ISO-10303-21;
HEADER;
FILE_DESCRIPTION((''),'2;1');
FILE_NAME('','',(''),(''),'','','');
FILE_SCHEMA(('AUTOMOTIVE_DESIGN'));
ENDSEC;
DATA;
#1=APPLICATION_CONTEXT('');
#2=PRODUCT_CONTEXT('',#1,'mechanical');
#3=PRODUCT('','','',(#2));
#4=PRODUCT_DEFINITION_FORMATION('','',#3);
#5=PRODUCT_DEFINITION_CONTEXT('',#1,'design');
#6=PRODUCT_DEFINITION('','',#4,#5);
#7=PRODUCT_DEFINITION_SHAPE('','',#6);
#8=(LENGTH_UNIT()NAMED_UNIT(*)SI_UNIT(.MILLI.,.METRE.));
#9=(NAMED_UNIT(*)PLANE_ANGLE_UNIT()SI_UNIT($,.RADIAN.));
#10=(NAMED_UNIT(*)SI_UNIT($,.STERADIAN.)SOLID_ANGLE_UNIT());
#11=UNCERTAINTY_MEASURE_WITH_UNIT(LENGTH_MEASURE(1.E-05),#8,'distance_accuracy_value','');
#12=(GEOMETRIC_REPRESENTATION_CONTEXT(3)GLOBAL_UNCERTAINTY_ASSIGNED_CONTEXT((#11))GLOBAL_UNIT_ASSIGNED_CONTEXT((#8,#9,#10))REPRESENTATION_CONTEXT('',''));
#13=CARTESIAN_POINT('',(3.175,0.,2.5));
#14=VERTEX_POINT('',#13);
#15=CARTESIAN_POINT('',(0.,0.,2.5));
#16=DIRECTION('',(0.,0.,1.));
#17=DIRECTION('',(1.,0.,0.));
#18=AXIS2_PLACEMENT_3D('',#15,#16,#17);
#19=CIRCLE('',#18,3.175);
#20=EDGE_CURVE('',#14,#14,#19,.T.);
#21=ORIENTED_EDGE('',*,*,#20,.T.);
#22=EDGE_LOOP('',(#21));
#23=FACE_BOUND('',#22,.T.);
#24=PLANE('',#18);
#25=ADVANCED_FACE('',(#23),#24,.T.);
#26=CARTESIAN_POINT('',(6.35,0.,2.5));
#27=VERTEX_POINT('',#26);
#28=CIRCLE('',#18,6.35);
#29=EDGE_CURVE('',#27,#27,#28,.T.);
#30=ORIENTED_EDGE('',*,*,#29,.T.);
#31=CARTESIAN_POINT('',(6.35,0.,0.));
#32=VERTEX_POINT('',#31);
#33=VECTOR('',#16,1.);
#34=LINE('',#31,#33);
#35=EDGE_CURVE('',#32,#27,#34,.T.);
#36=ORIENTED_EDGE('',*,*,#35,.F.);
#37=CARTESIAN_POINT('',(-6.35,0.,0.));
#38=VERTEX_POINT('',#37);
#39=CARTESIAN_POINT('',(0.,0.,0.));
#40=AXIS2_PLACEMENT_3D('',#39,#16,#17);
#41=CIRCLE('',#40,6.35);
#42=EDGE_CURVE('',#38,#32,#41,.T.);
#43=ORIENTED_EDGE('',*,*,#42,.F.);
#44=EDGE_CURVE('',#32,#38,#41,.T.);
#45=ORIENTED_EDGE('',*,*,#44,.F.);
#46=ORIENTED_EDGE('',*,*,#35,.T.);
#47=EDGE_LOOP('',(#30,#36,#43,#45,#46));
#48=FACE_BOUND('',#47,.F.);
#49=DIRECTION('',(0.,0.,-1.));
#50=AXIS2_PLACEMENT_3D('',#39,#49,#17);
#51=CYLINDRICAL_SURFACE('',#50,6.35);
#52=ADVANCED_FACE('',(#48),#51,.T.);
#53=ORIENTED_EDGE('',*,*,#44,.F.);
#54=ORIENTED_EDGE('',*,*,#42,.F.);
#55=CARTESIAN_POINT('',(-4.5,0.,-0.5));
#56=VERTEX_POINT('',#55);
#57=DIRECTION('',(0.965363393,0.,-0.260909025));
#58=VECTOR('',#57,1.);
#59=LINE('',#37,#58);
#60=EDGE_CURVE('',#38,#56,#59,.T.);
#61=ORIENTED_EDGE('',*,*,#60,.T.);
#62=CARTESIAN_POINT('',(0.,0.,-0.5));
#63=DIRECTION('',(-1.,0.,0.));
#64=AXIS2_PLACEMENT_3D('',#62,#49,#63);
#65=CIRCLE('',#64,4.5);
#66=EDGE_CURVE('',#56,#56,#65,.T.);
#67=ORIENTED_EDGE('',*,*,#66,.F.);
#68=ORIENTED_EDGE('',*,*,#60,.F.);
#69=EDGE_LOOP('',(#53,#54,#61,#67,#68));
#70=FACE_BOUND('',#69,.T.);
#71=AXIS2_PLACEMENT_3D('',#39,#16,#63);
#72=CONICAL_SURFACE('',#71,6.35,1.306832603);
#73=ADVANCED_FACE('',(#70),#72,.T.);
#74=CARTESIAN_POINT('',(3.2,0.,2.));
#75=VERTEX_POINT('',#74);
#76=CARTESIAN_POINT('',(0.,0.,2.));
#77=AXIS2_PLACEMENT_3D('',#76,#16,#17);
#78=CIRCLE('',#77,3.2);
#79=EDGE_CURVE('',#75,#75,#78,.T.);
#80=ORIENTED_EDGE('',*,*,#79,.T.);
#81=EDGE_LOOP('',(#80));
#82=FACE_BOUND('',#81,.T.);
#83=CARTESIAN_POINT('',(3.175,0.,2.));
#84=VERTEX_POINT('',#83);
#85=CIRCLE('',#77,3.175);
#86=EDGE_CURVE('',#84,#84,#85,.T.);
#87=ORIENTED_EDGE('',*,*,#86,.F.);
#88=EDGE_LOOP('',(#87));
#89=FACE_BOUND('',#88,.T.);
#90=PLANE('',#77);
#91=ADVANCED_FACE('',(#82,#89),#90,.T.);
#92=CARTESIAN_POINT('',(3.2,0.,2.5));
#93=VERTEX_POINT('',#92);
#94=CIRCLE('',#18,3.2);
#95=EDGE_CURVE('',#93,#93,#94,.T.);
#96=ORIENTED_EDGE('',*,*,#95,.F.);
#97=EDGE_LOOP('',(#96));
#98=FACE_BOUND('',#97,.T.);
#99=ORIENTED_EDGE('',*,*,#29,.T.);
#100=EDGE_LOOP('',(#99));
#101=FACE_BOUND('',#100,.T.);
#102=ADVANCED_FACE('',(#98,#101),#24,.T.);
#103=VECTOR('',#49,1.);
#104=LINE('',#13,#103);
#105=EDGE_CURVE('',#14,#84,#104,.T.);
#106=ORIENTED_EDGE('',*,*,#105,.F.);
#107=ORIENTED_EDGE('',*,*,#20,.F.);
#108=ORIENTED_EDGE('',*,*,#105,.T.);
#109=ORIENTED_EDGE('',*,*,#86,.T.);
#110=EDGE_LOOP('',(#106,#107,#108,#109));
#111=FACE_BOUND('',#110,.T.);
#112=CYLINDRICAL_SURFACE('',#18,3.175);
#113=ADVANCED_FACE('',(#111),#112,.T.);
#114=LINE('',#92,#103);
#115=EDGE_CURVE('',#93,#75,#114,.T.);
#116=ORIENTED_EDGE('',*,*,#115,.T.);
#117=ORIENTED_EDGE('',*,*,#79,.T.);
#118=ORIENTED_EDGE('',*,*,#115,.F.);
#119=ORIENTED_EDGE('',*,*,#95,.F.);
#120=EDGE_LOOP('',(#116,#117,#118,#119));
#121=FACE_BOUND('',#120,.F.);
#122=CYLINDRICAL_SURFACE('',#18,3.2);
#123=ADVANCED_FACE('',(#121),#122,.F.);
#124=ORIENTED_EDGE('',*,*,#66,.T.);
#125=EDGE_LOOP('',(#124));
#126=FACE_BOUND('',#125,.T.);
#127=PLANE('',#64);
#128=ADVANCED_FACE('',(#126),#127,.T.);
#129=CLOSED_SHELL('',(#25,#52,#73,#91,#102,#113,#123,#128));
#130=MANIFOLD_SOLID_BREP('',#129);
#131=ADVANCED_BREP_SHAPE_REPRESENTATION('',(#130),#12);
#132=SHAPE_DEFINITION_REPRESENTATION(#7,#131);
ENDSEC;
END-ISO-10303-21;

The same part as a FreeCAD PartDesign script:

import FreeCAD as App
import Part
import Sketcher

doc = App.newDocument("Part")
body = doc.addObject("PartDesign::Body", "Body")

# Sketch on XY plane
sketch1 = body.newObject("Sketcher::SketchObject", "Sketch")
sketch1.AttachmentSupport = (doc.getObject("XY_Plane"), [""])
sketch1.MapMode = "FlatFace"
sketch1.addGeometry(Part.Circle(App.Vector(0, 0, 0), App.Vector(0, 0, 1), 6), False)
sketch1.addConstraint([
    Sketcher.Constraint("Coincident", 0, 3, -1, 1),
    Sketcher.Constraint("Diameter", 0, 12.7),
])
pad1 = body.newObject("PartDesign::Pad", "Pad")
pad1.Profile = sketch1
pad1.Length = 2.5

# Sketch on XY plane
sketch2 = body.newObject("Sketcher::SketchObject", "Sketch001")
sketch2.AttachmentSupport = (doc.getObject("XY_Plane"), [""])
sketch2.MapMode = "FlatFace"
sketch2.AttachmentOffset = App.Placement(App.Vector(0, 0, 2.5), App.Rotation())
sketch2.addGeometry([
    Part.Circle(App.Vector(0, 0, 0), App.Vector(0, 0, 1), 3.2),
    Part.Circle(App.Vector(0, 0, 0), App.Vector(0, 0, 1), 3.2),
], False)
sketch2.addConstraint([
    Sketcher.Constraint("Coincident", 0, 3, -1, 1),
    Sketcher.Constraint("Coincident", 1, 3, -1, 1),
    Sketcher.Constraint("Diameter", 0, 6.4),
    Sketcher.Constraint("Diameter", 1, 6.35),
])
pocket1 = body.newObject("PartDesign::Pocket", "Pocket")
pocket1.Profile = sketch2
pocket1.Length = 0.5

# Sketch on XZ plane
sketch3 = body.newObject("Sketcher::SketchObject", "Sketch002")
sketch3.AttachmentSupport = (doc.getObject("XZ_Plane"), [""])
sketch3.MapMode = "FlatFace"
sketch3.addGeometry([
    Part.LineSegment(App.Vector(0, 0, 0), App.Vector(-6.3, 0, 0)),
    Part.LineSegment(App.Vector(-6.3, 0, 0), App.Vector(-4.5, -0.5, 0)),
    Part.LineSegment(App.Vector(-4.5, -0.5, 0), App.Vector(0, -0.5, 0)),
    Part.LineSegment(App.Vector(0, -0.5, 0), App.Vector(0, 0, 0)),
], False)
sketch3.addConstraint([
    Sketcher.Constraint("Coincident", 0, 2, 1, 1),
    Sketcher.Constraint("Coincident", 1, 2, 2, 1),
    Sketcher.Constraint("Coincident", 2, 2, 3, 1),
    Sketcher.Constraint("Coincident", 3, 2, 0, 1),
    Sketcher.Constraint("Horizontal", 0),
    Sketcher.Constraint("Horizontal", 2),
    Sketcher.Constraint("Vertical", 3),
    Sketcher.Constraint("Coincident", 3, 2, -1, 1),
    Sketcher.Constraint("DistanceX", 2, 1, 2, 2, 4.5),
    Sketcher.Constraint("DistanceY", 3, 1, 3, 2, 0.5),
    Sketcher.Constraint("DistanceX", 0, 2, 0, 1, 6.35),
])
revolution = body.newObject("PartDesign::Revolution", "Revolution")
revolution.Profile = sketch3
revolution.ReferenceAxis = (sketch3, ["V_Axis"])
revolution.Angle = 360

doc.recompute()
